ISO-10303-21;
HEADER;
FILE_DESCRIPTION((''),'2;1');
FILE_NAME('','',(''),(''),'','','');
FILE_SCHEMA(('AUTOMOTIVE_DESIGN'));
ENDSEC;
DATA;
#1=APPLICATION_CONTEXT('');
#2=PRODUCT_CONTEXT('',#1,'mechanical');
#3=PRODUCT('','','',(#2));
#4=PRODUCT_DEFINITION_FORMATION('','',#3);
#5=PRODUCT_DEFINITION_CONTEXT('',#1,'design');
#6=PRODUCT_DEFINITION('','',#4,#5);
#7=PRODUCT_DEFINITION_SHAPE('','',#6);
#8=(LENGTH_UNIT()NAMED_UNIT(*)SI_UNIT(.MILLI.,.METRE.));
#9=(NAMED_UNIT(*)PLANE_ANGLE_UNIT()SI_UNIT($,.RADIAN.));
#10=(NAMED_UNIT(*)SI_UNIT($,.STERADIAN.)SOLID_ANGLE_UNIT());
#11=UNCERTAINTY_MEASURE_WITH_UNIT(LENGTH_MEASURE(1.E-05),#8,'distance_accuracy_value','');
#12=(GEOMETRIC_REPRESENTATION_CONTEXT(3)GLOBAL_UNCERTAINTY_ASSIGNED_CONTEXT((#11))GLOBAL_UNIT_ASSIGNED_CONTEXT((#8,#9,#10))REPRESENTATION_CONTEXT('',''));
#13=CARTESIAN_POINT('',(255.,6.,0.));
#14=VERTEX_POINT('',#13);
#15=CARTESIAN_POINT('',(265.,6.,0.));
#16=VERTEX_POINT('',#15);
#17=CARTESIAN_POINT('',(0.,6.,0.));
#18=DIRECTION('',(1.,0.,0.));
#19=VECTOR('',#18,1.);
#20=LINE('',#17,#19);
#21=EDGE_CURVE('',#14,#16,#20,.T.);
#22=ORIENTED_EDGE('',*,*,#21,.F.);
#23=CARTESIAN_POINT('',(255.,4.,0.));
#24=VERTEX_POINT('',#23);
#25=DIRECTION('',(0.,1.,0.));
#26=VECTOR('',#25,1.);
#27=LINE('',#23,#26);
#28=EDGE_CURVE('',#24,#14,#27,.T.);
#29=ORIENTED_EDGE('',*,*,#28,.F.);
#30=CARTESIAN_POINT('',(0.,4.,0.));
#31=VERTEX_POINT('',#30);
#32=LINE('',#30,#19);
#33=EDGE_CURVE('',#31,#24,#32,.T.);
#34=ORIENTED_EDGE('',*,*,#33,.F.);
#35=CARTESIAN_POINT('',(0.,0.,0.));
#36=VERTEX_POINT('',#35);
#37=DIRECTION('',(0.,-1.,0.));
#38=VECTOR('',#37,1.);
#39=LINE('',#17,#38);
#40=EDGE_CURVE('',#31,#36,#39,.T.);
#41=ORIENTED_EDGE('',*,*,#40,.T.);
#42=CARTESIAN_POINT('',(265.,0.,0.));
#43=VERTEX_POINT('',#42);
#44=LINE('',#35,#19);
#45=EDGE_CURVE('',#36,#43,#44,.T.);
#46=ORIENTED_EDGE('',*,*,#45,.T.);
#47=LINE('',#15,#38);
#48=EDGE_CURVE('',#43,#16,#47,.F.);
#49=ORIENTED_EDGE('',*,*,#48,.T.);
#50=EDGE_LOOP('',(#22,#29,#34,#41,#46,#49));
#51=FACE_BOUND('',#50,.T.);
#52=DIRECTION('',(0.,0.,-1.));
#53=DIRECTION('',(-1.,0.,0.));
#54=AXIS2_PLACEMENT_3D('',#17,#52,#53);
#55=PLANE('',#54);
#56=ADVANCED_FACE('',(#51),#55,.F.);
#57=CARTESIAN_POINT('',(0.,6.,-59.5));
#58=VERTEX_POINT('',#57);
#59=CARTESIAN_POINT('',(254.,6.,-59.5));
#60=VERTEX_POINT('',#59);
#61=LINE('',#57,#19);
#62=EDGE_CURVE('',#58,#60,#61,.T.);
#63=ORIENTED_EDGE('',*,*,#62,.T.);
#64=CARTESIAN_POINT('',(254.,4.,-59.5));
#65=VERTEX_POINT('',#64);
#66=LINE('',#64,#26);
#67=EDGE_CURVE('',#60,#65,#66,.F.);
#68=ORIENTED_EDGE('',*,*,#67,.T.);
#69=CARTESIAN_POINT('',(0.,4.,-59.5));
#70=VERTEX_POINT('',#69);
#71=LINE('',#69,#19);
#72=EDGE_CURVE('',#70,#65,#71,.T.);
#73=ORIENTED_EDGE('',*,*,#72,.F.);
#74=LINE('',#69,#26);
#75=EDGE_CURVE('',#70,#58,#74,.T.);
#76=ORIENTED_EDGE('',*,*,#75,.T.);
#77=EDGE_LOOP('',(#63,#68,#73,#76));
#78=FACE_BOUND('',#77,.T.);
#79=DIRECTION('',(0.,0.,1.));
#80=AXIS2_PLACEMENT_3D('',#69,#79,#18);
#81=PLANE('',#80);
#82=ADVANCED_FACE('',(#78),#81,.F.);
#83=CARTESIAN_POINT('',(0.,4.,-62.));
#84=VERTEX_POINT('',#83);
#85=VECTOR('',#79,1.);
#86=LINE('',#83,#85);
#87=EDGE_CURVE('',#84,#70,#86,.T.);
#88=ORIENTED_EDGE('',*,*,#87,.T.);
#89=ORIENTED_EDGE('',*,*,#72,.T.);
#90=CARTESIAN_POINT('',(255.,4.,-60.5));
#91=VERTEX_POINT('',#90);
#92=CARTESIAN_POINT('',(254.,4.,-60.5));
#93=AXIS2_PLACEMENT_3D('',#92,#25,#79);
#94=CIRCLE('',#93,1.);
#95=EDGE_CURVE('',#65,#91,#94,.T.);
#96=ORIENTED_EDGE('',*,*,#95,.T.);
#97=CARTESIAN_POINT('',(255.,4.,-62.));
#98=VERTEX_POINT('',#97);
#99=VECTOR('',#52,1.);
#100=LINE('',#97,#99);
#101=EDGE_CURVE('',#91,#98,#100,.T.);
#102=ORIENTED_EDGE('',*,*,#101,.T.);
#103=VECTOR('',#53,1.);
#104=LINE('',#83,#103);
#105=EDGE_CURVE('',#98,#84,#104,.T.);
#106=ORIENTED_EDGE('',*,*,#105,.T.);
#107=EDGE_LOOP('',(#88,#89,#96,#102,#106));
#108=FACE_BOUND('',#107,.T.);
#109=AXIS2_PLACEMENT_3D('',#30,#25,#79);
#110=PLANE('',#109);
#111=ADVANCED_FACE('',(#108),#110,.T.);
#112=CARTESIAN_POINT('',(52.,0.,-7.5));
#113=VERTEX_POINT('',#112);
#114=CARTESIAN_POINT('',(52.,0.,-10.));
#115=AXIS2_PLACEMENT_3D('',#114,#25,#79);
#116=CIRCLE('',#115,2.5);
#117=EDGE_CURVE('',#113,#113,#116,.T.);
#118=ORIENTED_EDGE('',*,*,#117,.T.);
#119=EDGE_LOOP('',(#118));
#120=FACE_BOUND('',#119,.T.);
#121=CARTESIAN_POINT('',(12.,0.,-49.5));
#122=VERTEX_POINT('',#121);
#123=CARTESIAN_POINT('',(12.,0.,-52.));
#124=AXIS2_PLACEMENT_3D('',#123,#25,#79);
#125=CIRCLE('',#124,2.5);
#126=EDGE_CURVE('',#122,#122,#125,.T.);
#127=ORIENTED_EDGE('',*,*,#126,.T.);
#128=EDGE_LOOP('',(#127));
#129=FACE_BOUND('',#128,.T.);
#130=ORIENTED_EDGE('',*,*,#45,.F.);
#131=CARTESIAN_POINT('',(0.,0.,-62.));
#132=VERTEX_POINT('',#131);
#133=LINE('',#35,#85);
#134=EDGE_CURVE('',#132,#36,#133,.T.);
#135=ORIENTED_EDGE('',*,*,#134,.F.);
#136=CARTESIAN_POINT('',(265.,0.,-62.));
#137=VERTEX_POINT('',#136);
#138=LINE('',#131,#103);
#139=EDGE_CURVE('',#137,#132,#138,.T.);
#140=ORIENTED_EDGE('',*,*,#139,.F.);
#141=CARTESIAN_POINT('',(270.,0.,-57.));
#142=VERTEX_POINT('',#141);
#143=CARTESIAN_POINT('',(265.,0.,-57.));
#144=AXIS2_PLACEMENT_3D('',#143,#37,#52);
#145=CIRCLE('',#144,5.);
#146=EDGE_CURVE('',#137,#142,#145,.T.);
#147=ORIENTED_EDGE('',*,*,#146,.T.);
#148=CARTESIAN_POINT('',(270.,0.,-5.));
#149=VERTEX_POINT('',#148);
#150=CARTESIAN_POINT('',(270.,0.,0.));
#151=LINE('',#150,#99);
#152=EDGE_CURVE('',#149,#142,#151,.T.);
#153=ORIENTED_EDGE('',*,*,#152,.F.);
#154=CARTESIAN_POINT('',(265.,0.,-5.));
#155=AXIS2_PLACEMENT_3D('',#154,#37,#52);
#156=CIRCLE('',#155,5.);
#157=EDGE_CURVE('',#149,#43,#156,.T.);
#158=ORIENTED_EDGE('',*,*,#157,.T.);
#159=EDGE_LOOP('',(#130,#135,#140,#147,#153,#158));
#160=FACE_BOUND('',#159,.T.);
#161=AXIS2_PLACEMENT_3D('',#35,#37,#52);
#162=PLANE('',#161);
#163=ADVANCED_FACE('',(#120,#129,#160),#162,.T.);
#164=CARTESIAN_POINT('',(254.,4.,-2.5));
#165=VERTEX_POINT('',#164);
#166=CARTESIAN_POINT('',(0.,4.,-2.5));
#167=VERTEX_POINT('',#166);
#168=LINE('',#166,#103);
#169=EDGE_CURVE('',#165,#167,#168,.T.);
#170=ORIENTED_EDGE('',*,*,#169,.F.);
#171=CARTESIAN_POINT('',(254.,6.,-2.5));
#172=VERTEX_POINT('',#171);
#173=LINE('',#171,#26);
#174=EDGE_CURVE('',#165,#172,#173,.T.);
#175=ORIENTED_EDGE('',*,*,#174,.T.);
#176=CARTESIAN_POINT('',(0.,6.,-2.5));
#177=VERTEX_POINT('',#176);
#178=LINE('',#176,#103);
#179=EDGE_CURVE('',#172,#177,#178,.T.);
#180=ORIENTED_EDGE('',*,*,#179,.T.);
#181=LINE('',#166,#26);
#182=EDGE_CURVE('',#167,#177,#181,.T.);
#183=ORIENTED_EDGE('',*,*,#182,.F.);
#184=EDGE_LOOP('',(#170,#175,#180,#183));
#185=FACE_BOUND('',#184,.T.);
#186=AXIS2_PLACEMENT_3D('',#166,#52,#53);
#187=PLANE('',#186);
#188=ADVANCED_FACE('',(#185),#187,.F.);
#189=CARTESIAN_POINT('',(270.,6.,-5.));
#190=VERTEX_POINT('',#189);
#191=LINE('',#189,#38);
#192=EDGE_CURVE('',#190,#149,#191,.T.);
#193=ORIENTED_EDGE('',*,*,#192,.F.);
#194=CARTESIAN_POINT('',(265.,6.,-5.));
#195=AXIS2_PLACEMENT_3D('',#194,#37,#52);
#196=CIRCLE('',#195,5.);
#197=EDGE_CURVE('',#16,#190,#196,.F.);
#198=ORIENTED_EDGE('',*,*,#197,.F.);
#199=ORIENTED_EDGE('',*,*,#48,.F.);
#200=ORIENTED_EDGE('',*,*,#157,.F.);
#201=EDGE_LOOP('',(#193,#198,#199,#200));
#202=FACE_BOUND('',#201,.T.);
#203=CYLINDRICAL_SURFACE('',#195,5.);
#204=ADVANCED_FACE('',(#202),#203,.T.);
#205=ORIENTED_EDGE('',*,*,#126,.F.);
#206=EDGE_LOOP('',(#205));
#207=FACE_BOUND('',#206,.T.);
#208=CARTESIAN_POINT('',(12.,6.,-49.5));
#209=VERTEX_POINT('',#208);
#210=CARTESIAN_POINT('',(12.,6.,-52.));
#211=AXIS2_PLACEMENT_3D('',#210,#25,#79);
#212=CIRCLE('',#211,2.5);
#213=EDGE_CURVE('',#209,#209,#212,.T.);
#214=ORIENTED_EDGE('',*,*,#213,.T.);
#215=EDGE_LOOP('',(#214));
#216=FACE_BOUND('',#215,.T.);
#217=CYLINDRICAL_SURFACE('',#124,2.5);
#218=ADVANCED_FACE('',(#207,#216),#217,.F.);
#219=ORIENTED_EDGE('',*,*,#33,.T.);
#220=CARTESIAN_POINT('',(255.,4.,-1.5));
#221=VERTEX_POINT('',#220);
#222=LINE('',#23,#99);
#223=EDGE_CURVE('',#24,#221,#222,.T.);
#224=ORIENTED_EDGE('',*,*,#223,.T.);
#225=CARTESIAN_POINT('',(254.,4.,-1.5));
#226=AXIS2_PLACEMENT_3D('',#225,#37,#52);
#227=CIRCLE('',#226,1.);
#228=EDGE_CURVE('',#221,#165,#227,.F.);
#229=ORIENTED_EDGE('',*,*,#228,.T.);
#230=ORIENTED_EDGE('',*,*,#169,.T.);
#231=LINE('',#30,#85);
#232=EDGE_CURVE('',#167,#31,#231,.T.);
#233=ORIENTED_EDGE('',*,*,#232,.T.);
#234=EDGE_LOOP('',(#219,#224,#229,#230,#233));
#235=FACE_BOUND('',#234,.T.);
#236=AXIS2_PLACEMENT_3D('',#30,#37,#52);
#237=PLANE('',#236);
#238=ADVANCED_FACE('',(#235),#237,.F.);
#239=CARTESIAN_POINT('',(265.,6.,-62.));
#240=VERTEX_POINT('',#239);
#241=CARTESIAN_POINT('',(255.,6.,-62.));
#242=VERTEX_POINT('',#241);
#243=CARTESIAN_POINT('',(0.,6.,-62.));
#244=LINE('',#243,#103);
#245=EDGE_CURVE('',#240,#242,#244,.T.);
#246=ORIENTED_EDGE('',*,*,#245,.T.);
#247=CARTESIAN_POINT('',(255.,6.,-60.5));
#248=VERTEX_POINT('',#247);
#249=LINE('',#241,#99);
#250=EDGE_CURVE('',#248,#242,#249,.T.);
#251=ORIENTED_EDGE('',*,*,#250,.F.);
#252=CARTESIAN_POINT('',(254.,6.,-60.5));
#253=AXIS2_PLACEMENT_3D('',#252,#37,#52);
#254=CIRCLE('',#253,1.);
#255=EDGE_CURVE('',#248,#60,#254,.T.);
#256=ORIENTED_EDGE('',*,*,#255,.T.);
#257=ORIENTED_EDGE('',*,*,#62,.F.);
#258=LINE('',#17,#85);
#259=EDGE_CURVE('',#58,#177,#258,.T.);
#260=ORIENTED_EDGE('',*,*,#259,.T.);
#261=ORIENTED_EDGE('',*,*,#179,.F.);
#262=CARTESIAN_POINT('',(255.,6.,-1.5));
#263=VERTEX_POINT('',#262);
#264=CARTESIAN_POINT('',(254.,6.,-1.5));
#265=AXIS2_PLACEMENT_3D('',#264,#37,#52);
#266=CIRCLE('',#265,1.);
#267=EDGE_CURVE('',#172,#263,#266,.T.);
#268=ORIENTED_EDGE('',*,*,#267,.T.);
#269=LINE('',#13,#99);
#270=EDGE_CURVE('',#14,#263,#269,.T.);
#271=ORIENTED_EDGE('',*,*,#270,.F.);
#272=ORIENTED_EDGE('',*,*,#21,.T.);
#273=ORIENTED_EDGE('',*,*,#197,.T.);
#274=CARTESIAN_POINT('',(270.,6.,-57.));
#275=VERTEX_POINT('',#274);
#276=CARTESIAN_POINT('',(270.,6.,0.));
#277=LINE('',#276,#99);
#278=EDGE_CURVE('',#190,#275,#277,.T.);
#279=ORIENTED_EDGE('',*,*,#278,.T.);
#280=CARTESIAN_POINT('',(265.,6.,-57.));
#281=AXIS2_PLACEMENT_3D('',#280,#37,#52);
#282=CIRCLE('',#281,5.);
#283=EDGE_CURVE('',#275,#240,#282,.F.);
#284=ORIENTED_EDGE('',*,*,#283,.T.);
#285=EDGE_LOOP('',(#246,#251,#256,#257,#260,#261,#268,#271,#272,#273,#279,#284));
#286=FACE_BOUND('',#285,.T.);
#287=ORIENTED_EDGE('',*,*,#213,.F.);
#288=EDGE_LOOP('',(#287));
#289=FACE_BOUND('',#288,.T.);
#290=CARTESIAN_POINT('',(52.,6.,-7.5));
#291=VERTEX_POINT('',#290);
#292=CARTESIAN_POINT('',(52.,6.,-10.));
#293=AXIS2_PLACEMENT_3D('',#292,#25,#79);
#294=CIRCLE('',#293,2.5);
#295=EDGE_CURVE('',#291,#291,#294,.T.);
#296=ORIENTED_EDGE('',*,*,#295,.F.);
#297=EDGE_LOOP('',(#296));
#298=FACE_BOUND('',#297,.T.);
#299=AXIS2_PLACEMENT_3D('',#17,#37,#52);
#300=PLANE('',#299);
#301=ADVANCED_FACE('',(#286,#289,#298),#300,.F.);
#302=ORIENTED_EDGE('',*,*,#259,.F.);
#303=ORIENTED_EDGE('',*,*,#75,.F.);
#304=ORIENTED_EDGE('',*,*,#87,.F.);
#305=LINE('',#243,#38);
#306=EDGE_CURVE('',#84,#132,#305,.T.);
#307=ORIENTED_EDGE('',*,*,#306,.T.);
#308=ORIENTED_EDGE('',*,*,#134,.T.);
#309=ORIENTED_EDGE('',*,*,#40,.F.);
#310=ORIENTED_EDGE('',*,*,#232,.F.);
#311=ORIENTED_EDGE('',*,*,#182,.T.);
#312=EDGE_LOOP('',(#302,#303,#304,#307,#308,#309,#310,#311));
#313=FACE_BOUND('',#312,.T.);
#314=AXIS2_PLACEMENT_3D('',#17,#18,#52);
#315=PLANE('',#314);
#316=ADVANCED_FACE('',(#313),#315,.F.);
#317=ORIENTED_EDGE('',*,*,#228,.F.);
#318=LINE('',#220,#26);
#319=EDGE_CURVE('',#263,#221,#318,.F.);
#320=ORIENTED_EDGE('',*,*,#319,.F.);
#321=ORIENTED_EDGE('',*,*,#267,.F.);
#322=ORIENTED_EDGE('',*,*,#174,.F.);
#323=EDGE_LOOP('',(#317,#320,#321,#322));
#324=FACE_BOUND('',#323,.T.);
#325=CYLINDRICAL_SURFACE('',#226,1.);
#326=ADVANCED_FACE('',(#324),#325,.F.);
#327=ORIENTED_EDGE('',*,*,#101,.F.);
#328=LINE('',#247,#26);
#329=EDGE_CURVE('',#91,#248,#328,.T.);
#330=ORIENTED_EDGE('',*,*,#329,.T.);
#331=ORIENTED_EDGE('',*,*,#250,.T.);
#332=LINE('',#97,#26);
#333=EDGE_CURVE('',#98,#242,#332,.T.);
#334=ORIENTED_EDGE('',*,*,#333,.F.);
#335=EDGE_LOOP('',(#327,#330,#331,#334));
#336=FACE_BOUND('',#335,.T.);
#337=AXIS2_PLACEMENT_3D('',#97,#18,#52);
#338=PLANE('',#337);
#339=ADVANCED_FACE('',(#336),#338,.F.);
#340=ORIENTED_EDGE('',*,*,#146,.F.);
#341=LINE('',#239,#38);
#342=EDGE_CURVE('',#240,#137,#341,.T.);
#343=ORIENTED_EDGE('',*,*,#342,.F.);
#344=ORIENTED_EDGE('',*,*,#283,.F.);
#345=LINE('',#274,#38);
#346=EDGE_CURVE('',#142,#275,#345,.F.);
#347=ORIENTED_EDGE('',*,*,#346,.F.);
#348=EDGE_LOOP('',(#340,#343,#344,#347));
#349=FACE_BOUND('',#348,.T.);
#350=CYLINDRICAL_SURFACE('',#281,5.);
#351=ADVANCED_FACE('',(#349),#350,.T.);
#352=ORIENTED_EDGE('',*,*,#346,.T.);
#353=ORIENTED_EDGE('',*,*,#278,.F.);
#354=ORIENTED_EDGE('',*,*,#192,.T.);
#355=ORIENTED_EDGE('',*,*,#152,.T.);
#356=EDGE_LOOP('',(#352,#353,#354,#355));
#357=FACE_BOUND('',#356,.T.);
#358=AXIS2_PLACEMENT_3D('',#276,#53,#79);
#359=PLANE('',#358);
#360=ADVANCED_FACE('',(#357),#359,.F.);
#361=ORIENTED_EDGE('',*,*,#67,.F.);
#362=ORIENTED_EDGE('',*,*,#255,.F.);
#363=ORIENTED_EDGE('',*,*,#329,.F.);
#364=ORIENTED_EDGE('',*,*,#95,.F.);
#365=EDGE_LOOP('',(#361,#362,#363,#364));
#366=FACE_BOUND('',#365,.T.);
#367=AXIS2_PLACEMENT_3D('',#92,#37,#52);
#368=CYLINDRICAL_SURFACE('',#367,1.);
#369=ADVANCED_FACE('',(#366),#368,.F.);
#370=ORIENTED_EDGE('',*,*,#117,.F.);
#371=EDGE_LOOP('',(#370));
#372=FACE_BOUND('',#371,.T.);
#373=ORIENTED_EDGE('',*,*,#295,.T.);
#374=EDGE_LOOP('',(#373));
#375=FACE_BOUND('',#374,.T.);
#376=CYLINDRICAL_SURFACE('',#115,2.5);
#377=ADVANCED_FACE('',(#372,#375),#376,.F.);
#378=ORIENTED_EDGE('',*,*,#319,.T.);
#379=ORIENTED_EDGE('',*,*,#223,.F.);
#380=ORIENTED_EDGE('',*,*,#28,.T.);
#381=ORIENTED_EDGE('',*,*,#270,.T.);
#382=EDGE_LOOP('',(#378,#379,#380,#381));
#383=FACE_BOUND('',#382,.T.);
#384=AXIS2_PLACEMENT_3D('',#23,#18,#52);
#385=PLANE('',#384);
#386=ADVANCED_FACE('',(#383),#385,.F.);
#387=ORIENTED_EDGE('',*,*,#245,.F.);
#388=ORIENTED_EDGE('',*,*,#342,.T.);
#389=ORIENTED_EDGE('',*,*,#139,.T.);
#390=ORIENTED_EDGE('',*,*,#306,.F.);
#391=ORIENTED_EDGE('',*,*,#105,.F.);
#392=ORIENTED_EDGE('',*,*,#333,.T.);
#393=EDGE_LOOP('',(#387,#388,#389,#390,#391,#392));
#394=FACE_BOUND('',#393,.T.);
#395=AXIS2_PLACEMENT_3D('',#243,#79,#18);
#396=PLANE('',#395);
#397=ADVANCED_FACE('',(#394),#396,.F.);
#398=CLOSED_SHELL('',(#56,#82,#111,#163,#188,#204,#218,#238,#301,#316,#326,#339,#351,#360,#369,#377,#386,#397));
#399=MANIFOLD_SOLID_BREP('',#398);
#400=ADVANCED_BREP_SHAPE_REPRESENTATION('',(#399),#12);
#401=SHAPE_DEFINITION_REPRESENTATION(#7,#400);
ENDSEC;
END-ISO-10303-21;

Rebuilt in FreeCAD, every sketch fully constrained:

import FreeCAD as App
import Part
import Sketcher
Q = App.Units.Quantity


def edges_at(feature, points):
    """Names of the edges that pass closest to the given points."""
    edges = feature.Shape.Edges
    near = lambda p: min(range(len(edges)), key=lambda i: edges[i].distToShape(Part.Vertex(*p))[0])
    return sorted({f"Edge{near(p) + 1}" for p in points})


def add_polygon(sketch, points):
    """Adds a closed chain of lines whose ends are joined by coincident constraints."""
    first, n = sketch.GeometryCount, len(points)
    for a, b in zip(points, points[1:] + points[:1]):
        sketch.addGeometry(Part.LineSegment(App.Vector(*a, 0), App.Vector(*b, 0)), False)
    for i in range(n):
        sketch.addConstraint(Sketcher.Constraint("Coincident", first + i, 2, first + (i + 1) % n, 1))

doc = App.newDocument("Part")
body = doc.addObject("PartDesign::Body", "Body")

sketch1 = body.newObject("Sketcher::SketchObject", "Sketch")
sketch1.AttachmentSupport = (doc.getObject("XZ_Plane"), [""])
sketch1.MapMode = "FlatFace"
add_polygon(sketch1, [(0, -62), (0, 0), (270, 0), (270, -62)])
sketch1.addConstraint(Sketcher.Constraint("Vertical", 0))
sketch1.addConstraint(Sketcher.Constraint("Horizontal", 1))
sketch1.addConstraint(Sketcher.Constraint("Vertical", 2))
sketch1.addConstraint(Sketcher.Constraint("Horizontal", 3))
sketch1.addConstraint(Sketcher.Constraint("Coincident", 0, 2, -1, 1))
sketch1.addConstraint(Sketcher.Constraint("DistanceX", 1, 1, 1, 2, Q("270 mm")))
sketch1.addConstraint(Sketcher.Constraint("DistanceY", 0, 1, 0, 2, Q("62 mm")))
pad1 = body.newObject("PartDesign::Pad", "Pad")
pad1.Profile = sketch1
pad1.Length = 6
pad1.Reversed = True

sketch2 = body.newObject("Sketcher::SketchObject", "Sketch001")
sketch2.AttachmentSupport = (doc.getObject("XZ_Plane"), [""])
sketch2.MapMode = "FlatFace"
sketch2.AttachmentOffset = App.Placement(App.Vector(0, 0, -6), App.Rotation())
add_polygon(sketch2, [(0, -62), (0, -59.5), (255, -59.5), (255, -62)])
add_polygon(sketch2, [(0, -2.5), (0, 0), (255, 0), (255, -2.5)])
sketch2.addConstraint(Sketcher.Constraint("Vertical", 0))
sketch2.addConstraint(Sketcher.Constraint("Horizontal", 1))
sketch2.addConstraint(Sketcher.Constraint("Vertical", 2))
sketch2.addConstraint(Sketcher.Constraint("Horizontal", 3))
sketch2.addConstraint(Sketcher.Constraint("Vertical", 4))
sketch2.addConstraint(Sketcher.Constraint("Horizontal", 5))
sketch2.addConstraint(Sketcher.Constraint("Vertical", 6))
sketch2.addConstraint(Sketcher.Constraint("Horizontal", 7))
sketch2.addConstraint(Sketcher.Constraint("Coincident", 4, 2, -1, 1))
sketch2.addConstraint(Sketcher.Constraint("PointOnObject", 0, 2, -2))
sketch2.addConstraint(Sketcher.Constraint("Vertical", 2, 2, 5, 2))
sketch2.addConstraint(Sketcher.Constraint("Equal", 2, 4))
sketch2.addConstraint(Sketcher.Constraint("DistanceX", 1, 1, 1, 2, Q("255 mm")))
sketch2.addConstraint(Sketcher.Constraint("DistanceY", 0, 1, 0, 2, Q("2.5 mm")))
sketch2.addConstraint(Sketcher.Constraint("DistanceY", 2, 2, -1, 1, Q("62 mm")))
pocket1 = body.newObject("PartDesign::Pocket", "Pocket")
pocket1.Profile = sketch2
pocket1.Length = 2
pocket1.Reversed = True
doc.recompute()

fillet = body.newObject("PartDesign::Fillet", "Fillet")
fillet.Base = (pocket1, edges_at(pocket1, [(255, 5, -59.5), (255, 5, -2.5)]))
fillet.Radius = 1

sketch3 = body.newObject("Sketcher::SketchObject", "Sketch002")
sketch3.AttachmentSupport = (doc.getObject("XZ_Plane"), [""])
sketch3.MapMode = "FlatFace"
sketch3.AttachmentOffset = App.Placement(App.Vector(0, 0, -6), App.Rotation())
sketch3.addGeometry(Part.Circle(App.Vector(12, -52, 0), App.Vector(0, 0, 1), 2.5), False)
sketch3.addGeometry(Part.Circle(App.Vector(52, -10, 0), App.Vector(0, 0, 1), 2.5), False)
sketch3.addConstraint(Sketcher.Constraint("Equal", 0, 1))
sketch3.addConstraint(Sketcher.Constraint("Diameter", 0, Q("5 mm")))
sketch3.addConstraint(Sketcher.Constraint("DistanceX", -1, 1, 0, 3, Q("12 mm")))
sketch3.addConstraint(Sketcher.Constraint("DistanceY", 0, 3, -1, 1, Q("52 mm")))
sketch3.addConstraint(Sketcher.Constraint("DistanceX", -1, 1, 1, 3, Q("52 mm")))
sketch3.addConstraint(Sketcher.Constraint("DistanceY", 1, 3, -1, 1, Q("10 mm")))
pocket2 = body.newObject("PartDesign::Pocket", "Pocket001")
pocket2.Profile = sketch3
pocket2.Type = "ThroughAll"
pocket2.Reversed = True
doc.recompute()

fillet2 = body.newObject("PartDesign::Fillet", "Fillet001")
fillet2.Base = (pocket2, edges_at(pocket2, [(270, 3, -62), (270, 3, 0)]))
fillet2.Radius = 5

doc.recompute()
